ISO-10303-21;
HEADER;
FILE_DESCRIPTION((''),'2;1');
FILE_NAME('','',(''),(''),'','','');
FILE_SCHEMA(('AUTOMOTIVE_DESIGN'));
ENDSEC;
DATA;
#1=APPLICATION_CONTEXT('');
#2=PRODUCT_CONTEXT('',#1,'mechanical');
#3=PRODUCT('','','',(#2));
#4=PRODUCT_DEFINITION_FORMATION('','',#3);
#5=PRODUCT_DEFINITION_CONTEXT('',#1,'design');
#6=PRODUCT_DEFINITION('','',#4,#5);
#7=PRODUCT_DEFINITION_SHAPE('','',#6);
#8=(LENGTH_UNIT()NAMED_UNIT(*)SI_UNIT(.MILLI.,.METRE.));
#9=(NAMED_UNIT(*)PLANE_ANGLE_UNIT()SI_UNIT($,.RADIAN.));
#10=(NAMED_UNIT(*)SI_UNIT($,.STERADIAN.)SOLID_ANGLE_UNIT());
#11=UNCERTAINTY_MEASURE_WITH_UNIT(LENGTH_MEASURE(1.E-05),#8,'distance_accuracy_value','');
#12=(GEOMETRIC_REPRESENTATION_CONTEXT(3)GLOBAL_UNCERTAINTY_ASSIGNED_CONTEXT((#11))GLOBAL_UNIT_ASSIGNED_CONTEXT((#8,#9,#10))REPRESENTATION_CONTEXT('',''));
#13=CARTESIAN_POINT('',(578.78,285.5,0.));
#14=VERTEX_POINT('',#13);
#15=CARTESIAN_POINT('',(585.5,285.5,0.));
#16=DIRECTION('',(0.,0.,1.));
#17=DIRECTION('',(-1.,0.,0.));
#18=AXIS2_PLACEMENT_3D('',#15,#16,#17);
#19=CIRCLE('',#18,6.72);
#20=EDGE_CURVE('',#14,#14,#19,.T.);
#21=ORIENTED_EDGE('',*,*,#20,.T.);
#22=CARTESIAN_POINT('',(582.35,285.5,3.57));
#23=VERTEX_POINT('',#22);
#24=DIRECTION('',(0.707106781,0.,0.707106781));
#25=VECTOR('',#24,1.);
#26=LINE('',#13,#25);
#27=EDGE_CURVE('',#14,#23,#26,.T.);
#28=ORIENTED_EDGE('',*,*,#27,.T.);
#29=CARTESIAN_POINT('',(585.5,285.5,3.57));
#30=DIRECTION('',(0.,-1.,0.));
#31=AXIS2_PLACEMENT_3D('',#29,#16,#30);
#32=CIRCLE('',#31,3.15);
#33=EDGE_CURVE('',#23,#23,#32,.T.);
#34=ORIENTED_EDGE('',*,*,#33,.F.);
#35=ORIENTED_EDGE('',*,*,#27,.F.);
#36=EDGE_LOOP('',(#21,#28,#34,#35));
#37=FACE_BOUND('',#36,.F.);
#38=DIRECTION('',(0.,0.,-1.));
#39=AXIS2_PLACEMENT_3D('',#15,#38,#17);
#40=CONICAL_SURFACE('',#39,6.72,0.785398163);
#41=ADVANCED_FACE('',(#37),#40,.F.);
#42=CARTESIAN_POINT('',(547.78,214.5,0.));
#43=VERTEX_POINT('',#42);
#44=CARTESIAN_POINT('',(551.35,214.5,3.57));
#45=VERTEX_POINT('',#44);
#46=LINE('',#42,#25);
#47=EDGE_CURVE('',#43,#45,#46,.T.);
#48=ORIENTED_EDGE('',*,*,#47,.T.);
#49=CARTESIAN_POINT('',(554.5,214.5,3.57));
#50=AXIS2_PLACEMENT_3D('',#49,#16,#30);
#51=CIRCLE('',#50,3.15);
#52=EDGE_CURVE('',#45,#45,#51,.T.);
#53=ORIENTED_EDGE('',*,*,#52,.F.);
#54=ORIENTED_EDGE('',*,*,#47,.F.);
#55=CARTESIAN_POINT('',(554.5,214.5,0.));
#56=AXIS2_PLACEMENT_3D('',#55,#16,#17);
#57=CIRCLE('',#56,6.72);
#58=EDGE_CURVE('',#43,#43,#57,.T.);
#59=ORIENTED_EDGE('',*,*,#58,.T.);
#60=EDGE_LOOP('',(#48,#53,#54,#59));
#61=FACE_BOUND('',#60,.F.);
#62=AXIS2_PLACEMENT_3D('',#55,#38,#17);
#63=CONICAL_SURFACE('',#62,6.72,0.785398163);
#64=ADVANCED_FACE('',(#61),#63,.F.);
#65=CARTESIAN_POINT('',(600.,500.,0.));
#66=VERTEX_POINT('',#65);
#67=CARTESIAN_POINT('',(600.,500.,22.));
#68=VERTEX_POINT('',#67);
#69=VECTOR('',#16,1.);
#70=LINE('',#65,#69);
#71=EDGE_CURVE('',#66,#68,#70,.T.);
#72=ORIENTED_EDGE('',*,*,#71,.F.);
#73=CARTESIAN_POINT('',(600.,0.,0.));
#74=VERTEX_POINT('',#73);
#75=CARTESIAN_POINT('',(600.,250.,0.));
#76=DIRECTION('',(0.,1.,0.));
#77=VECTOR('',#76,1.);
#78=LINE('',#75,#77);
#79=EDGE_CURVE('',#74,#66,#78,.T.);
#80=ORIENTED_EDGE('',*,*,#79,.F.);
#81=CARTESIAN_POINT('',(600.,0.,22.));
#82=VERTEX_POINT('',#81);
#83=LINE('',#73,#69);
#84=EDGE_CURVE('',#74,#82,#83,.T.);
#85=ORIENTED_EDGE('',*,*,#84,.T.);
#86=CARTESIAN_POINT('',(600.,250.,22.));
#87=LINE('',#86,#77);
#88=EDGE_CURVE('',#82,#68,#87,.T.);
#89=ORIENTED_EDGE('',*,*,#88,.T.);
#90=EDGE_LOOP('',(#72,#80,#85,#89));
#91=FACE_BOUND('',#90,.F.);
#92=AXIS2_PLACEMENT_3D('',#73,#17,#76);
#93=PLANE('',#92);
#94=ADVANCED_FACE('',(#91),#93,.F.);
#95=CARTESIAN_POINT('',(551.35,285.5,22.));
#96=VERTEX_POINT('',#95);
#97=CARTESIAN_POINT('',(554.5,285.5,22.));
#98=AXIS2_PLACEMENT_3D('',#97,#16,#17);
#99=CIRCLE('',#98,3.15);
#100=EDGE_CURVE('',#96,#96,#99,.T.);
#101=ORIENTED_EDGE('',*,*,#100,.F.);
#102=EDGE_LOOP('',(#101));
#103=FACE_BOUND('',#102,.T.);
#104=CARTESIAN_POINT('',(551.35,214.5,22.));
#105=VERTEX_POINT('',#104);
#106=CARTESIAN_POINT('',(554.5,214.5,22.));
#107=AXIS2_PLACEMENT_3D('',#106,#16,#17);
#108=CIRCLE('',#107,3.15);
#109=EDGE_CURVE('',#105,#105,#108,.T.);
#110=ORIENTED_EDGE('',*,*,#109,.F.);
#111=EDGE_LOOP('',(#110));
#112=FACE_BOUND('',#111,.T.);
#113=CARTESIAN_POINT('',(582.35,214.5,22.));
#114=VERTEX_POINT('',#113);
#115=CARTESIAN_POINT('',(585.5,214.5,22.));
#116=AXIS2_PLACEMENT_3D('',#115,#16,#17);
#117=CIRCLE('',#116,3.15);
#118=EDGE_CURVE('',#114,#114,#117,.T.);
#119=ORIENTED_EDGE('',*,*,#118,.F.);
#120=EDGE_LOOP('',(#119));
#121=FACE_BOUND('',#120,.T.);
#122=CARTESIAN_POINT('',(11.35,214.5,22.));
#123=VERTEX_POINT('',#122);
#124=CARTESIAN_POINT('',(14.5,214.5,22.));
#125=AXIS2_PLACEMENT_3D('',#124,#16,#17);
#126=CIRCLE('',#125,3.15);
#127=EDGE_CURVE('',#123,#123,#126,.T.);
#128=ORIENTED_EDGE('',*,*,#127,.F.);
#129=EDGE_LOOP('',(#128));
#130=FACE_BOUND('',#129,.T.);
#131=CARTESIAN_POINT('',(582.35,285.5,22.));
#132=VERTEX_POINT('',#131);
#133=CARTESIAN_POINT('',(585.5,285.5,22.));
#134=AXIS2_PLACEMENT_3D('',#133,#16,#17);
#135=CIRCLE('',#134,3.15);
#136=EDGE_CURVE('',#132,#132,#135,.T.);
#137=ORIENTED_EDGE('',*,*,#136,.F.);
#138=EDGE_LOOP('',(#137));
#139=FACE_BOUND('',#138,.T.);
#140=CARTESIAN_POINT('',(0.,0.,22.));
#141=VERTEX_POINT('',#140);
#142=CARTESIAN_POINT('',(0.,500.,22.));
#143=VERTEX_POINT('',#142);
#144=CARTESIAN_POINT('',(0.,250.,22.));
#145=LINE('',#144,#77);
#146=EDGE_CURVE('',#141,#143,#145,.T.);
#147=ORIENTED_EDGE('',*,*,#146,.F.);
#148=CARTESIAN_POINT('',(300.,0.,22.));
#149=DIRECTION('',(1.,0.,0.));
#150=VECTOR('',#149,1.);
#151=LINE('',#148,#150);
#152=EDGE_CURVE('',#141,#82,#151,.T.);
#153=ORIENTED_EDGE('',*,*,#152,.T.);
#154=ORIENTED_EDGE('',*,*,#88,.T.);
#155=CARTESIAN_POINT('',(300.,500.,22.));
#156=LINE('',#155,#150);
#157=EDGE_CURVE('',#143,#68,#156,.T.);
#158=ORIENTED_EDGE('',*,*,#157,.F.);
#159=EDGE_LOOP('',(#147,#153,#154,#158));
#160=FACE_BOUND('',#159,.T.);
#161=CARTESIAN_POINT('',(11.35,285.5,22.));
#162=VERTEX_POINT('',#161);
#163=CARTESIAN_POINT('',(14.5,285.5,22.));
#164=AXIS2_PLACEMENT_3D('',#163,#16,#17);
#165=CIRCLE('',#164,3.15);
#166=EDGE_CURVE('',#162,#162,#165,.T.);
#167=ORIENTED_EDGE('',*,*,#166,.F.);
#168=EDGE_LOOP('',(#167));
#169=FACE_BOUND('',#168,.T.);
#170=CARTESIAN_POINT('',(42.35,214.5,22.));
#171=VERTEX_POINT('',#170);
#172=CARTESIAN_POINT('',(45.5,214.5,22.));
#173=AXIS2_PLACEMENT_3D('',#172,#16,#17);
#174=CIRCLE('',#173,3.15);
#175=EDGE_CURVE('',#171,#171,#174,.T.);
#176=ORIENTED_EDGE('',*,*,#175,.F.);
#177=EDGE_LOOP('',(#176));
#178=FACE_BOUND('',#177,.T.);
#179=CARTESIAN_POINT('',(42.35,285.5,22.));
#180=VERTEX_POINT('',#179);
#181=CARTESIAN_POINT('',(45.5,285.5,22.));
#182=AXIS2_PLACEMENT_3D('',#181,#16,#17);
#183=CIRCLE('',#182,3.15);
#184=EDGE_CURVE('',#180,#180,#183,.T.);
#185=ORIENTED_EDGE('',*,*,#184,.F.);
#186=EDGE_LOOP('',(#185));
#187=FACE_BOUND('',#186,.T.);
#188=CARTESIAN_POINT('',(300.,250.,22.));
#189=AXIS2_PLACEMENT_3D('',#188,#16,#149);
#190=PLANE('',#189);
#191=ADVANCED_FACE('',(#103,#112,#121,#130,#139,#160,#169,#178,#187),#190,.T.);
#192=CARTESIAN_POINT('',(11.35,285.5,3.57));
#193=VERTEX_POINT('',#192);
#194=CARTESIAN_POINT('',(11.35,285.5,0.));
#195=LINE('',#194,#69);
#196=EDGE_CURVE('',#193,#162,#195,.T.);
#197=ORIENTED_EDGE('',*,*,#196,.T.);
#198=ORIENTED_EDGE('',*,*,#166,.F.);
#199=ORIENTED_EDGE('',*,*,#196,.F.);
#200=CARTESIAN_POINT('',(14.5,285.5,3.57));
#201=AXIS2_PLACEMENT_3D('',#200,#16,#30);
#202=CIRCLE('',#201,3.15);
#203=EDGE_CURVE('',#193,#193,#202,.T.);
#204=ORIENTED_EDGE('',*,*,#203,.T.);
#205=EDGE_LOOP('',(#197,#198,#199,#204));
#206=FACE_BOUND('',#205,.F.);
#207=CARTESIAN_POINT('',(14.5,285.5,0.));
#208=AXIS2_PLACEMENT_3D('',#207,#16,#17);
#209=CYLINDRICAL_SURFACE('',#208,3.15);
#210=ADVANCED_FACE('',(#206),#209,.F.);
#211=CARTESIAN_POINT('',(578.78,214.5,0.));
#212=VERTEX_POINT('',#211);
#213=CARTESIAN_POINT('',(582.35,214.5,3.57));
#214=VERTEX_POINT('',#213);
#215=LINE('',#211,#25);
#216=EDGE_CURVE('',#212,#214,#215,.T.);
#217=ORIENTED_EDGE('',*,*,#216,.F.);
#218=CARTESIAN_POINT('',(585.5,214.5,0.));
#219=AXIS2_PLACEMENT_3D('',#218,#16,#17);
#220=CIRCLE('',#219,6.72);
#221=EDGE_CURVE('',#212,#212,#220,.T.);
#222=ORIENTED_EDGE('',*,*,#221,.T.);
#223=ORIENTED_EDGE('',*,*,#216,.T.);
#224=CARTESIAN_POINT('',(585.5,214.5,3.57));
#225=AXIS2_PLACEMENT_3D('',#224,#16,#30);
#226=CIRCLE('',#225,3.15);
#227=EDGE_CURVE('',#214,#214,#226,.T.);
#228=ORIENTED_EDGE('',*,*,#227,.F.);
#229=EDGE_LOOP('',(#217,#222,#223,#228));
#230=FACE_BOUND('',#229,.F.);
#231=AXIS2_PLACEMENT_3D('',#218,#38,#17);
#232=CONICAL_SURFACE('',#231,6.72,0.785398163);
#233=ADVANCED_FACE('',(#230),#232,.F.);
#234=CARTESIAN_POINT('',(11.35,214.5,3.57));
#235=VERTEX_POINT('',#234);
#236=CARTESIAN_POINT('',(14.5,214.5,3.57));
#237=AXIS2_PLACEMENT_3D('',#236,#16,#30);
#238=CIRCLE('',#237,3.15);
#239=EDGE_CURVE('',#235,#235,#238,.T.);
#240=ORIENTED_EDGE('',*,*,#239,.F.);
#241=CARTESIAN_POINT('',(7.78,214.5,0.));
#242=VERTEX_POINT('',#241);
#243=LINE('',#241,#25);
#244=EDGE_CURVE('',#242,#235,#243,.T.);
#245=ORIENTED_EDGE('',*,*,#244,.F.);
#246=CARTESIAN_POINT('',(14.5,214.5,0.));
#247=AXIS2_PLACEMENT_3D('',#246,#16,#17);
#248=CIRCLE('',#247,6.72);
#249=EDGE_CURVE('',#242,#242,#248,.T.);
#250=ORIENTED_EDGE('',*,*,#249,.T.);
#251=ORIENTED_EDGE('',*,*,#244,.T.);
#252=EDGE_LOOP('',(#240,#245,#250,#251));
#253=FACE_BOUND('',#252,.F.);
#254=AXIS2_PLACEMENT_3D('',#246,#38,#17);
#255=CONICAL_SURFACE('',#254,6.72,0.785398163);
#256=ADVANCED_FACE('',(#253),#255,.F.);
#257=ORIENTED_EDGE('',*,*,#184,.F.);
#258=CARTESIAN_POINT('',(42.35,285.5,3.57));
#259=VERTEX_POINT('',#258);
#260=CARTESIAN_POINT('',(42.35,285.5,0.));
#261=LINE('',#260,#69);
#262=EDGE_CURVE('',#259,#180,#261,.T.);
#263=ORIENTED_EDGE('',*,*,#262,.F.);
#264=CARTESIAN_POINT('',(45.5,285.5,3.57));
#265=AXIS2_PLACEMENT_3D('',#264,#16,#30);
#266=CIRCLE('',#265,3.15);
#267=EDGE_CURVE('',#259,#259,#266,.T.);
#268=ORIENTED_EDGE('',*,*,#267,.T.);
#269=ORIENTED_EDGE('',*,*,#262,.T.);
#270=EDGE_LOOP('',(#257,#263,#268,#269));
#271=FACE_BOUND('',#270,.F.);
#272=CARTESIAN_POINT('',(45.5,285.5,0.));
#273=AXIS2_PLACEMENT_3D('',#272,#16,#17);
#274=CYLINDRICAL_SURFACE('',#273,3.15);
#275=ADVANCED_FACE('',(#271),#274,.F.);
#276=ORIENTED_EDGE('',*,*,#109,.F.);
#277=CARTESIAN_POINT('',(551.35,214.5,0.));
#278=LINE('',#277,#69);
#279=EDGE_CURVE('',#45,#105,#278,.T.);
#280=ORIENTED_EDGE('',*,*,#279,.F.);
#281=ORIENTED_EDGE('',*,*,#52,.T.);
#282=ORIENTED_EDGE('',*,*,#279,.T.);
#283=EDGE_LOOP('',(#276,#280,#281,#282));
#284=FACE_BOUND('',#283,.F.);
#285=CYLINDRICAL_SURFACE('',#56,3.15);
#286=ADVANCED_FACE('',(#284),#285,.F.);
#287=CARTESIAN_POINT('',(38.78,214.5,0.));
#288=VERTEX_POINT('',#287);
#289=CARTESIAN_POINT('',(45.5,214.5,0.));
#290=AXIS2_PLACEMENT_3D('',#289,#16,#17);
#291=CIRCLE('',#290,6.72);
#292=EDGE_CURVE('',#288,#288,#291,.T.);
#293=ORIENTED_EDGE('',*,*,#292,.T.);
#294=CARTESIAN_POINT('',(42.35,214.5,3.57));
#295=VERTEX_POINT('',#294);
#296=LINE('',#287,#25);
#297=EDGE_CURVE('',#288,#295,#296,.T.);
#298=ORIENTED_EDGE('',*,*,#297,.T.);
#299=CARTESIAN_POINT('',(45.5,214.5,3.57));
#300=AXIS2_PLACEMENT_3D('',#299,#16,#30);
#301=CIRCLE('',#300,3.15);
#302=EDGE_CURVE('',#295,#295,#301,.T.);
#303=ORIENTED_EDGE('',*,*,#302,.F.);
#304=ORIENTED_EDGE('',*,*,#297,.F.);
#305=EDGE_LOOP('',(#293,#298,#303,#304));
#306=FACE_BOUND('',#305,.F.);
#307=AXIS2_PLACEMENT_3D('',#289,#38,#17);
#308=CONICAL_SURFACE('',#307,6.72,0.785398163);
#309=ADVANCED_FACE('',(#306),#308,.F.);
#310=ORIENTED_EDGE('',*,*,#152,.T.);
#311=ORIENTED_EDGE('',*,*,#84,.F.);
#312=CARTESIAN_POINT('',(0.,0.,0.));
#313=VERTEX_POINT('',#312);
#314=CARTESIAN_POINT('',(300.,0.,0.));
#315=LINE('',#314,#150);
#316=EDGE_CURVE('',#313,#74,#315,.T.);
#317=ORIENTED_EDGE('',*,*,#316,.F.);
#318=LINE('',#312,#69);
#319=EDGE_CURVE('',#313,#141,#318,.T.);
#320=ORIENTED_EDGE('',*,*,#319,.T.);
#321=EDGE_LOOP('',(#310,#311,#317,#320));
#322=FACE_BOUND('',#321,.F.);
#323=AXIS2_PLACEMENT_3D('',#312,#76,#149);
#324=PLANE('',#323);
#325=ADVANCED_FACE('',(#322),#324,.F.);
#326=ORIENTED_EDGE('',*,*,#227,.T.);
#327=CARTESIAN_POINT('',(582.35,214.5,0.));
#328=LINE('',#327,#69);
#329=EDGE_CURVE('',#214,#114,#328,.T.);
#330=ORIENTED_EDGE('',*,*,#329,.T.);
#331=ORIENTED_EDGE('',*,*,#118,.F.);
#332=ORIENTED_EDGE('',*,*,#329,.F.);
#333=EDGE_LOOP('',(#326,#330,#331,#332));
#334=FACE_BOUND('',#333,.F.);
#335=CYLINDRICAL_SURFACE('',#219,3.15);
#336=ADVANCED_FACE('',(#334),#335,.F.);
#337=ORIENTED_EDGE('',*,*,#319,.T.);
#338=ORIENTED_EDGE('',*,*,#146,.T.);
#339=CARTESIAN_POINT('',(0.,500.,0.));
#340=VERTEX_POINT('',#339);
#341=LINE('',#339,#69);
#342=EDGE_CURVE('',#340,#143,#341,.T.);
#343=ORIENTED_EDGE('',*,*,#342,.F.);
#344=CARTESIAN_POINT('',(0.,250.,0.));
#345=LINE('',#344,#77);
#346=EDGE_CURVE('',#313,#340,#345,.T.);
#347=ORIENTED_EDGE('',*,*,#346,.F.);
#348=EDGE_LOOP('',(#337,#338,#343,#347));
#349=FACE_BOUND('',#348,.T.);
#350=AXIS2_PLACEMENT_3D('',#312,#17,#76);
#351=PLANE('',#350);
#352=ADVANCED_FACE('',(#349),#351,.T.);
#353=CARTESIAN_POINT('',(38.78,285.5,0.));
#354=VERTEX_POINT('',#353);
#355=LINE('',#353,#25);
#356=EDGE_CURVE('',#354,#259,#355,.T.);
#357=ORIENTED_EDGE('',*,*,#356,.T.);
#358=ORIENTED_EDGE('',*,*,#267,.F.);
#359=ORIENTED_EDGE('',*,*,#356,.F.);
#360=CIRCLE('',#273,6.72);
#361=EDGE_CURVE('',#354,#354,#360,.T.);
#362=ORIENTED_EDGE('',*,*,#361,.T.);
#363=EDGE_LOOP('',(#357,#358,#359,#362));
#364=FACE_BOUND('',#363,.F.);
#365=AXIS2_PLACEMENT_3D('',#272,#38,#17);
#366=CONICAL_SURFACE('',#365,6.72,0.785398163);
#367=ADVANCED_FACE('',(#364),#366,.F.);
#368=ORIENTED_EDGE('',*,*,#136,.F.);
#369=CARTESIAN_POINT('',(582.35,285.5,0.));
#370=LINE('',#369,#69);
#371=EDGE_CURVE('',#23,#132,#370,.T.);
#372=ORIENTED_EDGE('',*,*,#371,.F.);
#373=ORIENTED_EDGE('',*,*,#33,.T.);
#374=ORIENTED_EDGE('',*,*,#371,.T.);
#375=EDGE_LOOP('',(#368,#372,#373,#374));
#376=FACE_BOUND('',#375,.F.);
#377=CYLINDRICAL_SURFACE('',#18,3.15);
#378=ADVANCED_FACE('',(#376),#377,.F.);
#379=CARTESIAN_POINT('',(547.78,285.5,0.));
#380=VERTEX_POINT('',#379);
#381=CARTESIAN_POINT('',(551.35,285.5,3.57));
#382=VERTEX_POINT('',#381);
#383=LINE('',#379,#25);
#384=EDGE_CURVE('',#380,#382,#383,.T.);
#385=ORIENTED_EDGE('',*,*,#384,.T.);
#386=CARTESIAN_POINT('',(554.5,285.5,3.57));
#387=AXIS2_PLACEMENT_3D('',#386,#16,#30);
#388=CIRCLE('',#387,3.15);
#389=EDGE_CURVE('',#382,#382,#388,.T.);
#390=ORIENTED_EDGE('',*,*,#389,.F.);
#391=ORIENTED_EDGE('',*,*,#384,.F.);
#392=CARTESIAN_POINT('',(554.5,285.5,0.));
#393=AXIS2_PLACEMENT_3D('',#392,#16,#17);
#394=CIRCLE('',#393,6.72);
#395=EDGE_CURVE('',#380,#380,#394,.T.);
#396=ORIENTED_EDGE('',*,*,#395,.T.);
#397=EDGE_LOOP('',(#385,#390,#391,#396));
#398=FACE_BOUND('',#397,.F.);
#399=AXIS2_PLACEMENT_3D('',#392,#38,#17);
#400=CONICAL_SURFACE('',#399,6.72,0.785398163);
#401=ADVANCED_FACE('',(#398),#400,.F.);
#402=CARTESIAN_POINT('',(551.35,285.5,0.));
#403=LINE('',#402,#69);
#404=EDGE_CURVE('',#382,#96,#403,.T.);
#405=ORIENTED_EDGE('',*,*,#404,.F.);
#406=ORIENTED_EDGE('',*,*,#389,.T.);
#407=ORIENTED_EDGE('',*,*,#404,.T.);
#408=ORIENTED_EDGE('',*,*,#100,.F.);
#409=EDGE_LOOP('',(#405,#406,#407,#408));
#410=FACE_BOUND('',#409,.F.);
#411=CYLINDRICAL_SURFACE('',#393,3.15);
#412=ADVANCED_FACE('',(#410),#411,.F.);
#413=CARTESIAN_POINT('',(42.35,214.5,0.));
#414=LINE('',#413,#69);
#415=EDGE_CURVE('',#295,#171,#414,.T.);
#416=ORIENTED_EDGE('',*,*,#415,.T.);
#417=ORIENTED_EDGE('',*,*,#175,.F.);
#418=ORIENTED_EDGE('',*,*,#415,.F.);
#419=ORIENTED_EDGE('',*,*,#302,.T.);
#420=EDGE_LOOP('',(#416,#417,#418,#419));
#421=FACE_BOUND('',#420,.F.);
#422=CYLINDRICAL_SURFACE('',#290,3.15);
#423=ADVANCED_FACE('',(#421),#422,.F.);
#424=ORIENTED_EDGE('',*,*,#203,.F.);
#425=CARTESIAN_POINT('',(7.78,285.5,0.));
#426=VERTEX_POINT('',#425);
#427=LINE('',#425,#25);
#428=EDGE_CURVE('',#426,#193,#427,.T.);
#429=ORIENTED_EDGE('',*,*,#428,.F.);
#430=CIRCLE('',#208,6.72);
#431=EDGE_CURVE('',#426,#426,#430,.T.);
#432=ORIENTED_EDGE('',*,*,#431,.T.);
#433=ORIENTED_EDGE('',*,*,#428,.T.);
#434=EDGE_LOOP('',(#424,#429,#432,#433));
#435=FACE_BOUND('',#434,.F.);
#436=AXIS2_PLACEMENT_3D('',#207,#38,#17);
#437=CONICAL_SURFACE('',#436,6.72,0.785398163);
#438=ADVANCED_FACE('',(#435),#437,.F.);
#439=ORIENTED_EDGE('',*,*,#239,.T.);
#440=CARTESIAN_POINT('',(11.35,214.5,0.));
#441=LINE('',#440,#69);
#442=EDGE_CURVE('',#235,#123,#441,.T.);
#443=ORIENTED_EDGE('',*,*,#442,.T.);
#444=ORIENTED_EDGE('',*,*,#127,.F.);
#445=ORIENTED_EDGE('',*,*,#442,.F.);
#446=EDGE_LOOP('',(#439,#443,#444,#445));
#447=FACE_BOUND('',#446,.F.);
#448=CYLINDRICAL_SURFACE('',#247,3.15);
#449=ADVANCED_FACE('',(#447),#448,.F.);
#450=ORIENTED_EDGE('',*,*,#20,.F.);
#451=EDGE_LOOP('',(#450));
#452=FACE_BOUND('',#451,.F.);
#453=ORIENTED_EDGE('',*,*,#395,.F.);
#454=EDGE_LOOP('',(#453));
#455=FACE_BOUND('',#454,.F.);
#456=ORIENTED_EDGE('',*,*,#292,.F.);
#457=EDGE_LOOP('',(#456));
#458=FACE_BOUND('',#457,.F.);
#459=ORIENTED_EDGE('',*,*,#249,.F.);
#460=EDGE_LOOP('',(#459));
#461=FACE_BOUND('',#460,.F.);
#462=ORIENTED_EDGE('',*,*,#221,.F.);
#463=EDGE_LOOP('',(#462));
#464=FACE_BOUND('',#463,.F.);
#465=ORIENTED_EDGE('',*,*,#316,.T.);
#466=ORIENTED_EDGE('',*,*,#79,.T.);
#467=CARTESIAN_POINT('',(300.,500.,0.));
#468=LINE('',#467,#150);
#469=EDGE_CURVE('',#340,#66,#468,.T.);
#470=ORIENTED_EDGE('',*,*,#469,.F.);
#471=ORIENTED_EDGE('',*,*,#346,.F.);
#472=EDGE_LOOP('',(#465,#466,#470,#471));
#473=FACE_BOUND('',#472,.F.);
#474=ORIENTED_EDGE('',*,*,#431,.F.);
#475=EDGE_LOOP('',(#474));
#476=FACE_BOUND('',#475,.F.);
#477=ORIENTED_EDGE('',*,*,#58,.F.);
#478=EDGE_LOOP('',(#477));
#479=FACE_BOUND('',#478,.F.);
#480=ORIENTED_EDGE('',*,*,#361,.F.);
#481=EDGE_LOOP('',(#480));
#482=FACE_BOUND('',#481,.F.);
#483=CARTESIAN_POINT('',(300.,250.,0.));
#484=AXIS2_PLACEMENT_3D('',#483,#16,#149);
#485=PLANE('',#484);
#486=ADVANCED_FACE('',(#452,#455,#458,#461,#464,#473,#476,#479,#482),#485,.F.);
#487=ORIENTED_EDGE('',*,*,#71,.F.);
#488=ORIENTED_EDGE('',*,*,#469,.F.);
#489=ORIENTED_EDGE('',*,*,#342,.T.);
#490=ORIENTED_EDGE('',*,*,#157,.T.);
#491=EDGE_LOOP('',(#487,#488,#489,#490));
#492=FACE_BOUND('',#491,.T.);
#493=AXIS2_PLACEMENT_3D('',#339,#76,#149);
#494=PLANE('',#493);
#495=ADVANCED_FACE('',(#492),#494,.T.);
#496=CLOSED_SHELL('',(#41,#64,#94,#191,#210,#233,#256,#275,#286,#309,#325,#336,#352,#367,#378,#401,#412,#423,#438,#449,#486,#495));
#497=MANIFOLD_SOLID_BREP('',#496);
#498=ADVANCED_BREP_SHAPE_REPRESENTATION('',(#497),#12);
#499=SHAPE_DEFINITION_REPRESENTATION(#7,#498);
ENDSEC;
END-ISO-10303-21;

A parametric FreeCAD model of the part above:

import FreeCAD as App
import Part
import Sketcher

V = App.Vector

doc = App.newDocument("Part")
body = doc.addObject("PartDesign::Body", "Body")

sketch1 = body.newObject("Sketcher::SketchObject", "Sketch")
sketch1.AttachmentSupport = (doc.getObject("XY_Plane"), [""])
sketch1.MapMode = "FlatFace"
sketch1.addGeometry([
    Part.LineSegment(V(0, 500, 0), V(0, 0, 0)),
    Part.LineSegment(V(0, 0, 0), V(600, 0, 0)),
    Part.LineSegment(V(600, 0, 0), V(600, 500, 0)),
    Part.LineSegment(V(600, 500, 0), V(0, 500, 0)),
], False)
sketch1.addConstraint([
    Sketcher.Constraint("Coincident", 0, 2, 1, 1),
    Sketcher.Constraint("Coincident", 1, 2, 2, 1),
    Sketcher.Constraint("Coincident", 2, 2, 3, 1),
    Sketcher.Constraint("Coincident", 3, 2, 0, 1),
    Sketcher.Constraint("Vertical", 0),
    Sketcher.Constraint("Horizontal", 1),
    Sketcher.Constraint("Vertical", 2),
    Sketcher.Constraint("Horizontal", 3),
    Sketcher.Constraint("Coincident", 0, 2, -1, 1),
    Sketcher.Constraint("DistanceX", 1, 1, 1, 2, 600.0),
    Sketcher.Constraint("DistanceY", 0, 2, 0, 1, 500.0),
])
pad1 = body.newObject("PartDesign::Pad", "Pad")
pad1.Profile = sketch1
pad1.Length = 22

sketch2 = body.newObject("Sketcher::SketchObject", "Sketch001")
sketch2.AttachmentSupport = (doc.getObject("XY_Plane"), [""])
sketch2.MapMode = "FlatFace"
sketch2.addGeometry([
    Part.Circle(V(14.5, 214.5, 0), V(0, 0, 1), 3.1),
    Part.Circle(V(45.5, 214.5, 0), V(0, 0, 1), 3.1),
    Part.Circle(V(14.5, 285.5, 0), V(0, 0, 1), 3.1),
    Part.Circle(V(45.5, 285.5, 0), V(0, 0, 1), 3.1),
    Part.Circle(V(554.5, 214.5, 0), V(0, 0, 1), 3.1),
    Part.Circle(V(585.5, 214.5, 0), V(0, 0, 1), 3.1),
    Part.Circle(V(554.5, 285.5, 0), V(0, 0, 1), 3.1),
    Part.Circle(V(585.5, 285.5, 0), V(0, 0, 1), 3.1),
], False)
sketch2.addConstraint([
    Sketcher.Constraint("Equal", 0, 1),
    Sketcher.Constraint("Equal", 1, 2),
    Sketcher.Constraint("Equal", 2, 3),
    Sketcher.Constraint("Equal", 3, 4),
    Sketcher.Constraint("Equal", 4, 5),
    Sketcher.Constraint("Equal", 5, 6),
    Sketcher.Constraint("Equal", 6, 7),
    Sketcher.Constraint("Horizontal", 0, 3, 1, 3),
    Sketcher.Constraint("Horizontal", 2, 3, 3, 3),
    Sketcher.Constraint("Horizontal", 1, 3, 4, 3),
    Sketcher.Constraint("Horizontal", 4, 3, 5, 3),
    Sketcher.Constraint("Horizontal", 3, 3, 6, 3),
    Sketcher.Constraint("Horizontal", 6, 3, 7, 3),
    Sketcher.Constraint("Vertical", 0, 3, 2, 3),
    Sketcher.Constraint("Vertical", 1, 3, 3, 3),
    Sketcher.Constraint("Vertical", 4, 3, 6, 3),
    Sketcher.Constraint("Vertical", 5, 3, 7, 3),
    Sketcher.Constraint("Diameter", 0, 6.3),
    Sketcher.Constraint("DistanceX", 0, 3, 1, 3, 31.0),
    Sketcher.Constraint("DistanceY", 0, 3, 2, 3, 71.0),
    Sketcher.Constraint("DistanceX", 1, 3, 4, 3, 509.0),
    Sketcher.Constraint("DistanceX", 4, 3, 5, 3, 31.0),
    Sketcher.Constraint("DistanceX", -1, 1, 0, 3, 14.5),
    Sketcher.Constraint("DistanceY", -1, 1, 0, 3, 214.5),
])
doc.recompute()
hole = body.newObject("PartDesign::Hole", "Hole")
hole.Profile = sketch2
hole.ThreadType = "None"
hole.Diameter = 6.3
hole.DepthType = "ThroughAll"
hole.HoleCutType = "Countersink"
hole.HoleCutDiameter = 13.44
hole.HoleCutCountersinkAngle = 90
hole.Reversed = True

doc.recompute()
